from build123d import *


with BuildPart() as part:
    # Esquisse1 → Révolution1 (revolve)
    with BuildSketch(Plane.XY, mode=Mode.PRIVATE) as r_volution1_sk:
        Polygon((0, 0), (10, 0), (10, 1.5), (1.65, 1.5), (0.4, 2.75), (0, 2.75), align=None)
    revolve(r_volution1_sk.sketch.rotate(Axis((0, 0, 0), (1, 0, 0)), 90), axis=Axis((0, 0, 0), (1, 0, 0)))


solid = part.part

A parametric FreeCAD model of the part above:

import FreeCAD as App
import Part
import Sketcher
from FreeCAD import Vector
Q = App.Units.Quantity


def add_polygon(sketch, points):
    """Adds a closed chain of lines whose ends are joined by coincident constraints."""
    first, n = sketch.GeometryCount, len(points)
    for a, b in zip(points, points[1:] + points[:1]):
        sketch.addGeometry(Part.LineSegment(App.Vector(*a, 0), App.Vector(*b, 0)), False)
    for i in range(n):
        sketch.addConstraint(Sketcher.Constraint("Coincident", first + i, 2, first + (i + 1) % n, 1))

doc = App.newDocument("Part")
body = doc.addObject("PartDesign::Body", "Body")

sketch1 = body.newObject("Sketcher::SketchObject", "Sketch")
sketch1.AttachmentSupport = (doc.getObject("XY_Plane"), [""])
sketch1.MapMode = "FlatFace"
add_polygon(sketch1, [(0, 0), (10, 0), (10, 1.5), (1.65, 1.5), (0.4, 2.75), (0, 2.75)])
sketch1.addConstraint(Sketcher.Constraint("Horizontal", 0))
sketch1.addConstraint(Sketcher.Constraint("Vertical", 1))
sketch1.addConstraint(Sketcher.Constraint("Horizontal", 2))
sketch1.addConstraint(Sketcher.Constraint("Horizontal", 4))
sketch1.addConstraint(Sketcher.Constraint("Vertical", 5))
sketch1.addConstraint(Sketcher.Constraint("Coincident", 5, 2, -1, 1))
sketch1.addConstraint(Sketcher.Constraint("DistanceX", 0, 1, 0, 2, 10.0))
sketch1.addConstraint(Sketcher.Constraint("Angle", 3, Q("135 deg")))
sketch1.addConstraint(Sketcher.Constraint("DistanceX", 4, 2, 4, 1, 0.4))
sketch1.addConstraint(Sketcher.Constraint("DistanceY", 1, 1, 1, 2, 1.5))
sketch1.addConstraint(Sketcher.Constraint("DistanceX", 2, 2, 2, 1, 8.35))
revolution = body.newObject("PartDesign::Revolution", "Revolution")
revolution.Profile = sketch1
revolution.ReferenceAxis = (sketch1, ["H_Axis"])
revolution.Angle = 360

doc.recompute()
